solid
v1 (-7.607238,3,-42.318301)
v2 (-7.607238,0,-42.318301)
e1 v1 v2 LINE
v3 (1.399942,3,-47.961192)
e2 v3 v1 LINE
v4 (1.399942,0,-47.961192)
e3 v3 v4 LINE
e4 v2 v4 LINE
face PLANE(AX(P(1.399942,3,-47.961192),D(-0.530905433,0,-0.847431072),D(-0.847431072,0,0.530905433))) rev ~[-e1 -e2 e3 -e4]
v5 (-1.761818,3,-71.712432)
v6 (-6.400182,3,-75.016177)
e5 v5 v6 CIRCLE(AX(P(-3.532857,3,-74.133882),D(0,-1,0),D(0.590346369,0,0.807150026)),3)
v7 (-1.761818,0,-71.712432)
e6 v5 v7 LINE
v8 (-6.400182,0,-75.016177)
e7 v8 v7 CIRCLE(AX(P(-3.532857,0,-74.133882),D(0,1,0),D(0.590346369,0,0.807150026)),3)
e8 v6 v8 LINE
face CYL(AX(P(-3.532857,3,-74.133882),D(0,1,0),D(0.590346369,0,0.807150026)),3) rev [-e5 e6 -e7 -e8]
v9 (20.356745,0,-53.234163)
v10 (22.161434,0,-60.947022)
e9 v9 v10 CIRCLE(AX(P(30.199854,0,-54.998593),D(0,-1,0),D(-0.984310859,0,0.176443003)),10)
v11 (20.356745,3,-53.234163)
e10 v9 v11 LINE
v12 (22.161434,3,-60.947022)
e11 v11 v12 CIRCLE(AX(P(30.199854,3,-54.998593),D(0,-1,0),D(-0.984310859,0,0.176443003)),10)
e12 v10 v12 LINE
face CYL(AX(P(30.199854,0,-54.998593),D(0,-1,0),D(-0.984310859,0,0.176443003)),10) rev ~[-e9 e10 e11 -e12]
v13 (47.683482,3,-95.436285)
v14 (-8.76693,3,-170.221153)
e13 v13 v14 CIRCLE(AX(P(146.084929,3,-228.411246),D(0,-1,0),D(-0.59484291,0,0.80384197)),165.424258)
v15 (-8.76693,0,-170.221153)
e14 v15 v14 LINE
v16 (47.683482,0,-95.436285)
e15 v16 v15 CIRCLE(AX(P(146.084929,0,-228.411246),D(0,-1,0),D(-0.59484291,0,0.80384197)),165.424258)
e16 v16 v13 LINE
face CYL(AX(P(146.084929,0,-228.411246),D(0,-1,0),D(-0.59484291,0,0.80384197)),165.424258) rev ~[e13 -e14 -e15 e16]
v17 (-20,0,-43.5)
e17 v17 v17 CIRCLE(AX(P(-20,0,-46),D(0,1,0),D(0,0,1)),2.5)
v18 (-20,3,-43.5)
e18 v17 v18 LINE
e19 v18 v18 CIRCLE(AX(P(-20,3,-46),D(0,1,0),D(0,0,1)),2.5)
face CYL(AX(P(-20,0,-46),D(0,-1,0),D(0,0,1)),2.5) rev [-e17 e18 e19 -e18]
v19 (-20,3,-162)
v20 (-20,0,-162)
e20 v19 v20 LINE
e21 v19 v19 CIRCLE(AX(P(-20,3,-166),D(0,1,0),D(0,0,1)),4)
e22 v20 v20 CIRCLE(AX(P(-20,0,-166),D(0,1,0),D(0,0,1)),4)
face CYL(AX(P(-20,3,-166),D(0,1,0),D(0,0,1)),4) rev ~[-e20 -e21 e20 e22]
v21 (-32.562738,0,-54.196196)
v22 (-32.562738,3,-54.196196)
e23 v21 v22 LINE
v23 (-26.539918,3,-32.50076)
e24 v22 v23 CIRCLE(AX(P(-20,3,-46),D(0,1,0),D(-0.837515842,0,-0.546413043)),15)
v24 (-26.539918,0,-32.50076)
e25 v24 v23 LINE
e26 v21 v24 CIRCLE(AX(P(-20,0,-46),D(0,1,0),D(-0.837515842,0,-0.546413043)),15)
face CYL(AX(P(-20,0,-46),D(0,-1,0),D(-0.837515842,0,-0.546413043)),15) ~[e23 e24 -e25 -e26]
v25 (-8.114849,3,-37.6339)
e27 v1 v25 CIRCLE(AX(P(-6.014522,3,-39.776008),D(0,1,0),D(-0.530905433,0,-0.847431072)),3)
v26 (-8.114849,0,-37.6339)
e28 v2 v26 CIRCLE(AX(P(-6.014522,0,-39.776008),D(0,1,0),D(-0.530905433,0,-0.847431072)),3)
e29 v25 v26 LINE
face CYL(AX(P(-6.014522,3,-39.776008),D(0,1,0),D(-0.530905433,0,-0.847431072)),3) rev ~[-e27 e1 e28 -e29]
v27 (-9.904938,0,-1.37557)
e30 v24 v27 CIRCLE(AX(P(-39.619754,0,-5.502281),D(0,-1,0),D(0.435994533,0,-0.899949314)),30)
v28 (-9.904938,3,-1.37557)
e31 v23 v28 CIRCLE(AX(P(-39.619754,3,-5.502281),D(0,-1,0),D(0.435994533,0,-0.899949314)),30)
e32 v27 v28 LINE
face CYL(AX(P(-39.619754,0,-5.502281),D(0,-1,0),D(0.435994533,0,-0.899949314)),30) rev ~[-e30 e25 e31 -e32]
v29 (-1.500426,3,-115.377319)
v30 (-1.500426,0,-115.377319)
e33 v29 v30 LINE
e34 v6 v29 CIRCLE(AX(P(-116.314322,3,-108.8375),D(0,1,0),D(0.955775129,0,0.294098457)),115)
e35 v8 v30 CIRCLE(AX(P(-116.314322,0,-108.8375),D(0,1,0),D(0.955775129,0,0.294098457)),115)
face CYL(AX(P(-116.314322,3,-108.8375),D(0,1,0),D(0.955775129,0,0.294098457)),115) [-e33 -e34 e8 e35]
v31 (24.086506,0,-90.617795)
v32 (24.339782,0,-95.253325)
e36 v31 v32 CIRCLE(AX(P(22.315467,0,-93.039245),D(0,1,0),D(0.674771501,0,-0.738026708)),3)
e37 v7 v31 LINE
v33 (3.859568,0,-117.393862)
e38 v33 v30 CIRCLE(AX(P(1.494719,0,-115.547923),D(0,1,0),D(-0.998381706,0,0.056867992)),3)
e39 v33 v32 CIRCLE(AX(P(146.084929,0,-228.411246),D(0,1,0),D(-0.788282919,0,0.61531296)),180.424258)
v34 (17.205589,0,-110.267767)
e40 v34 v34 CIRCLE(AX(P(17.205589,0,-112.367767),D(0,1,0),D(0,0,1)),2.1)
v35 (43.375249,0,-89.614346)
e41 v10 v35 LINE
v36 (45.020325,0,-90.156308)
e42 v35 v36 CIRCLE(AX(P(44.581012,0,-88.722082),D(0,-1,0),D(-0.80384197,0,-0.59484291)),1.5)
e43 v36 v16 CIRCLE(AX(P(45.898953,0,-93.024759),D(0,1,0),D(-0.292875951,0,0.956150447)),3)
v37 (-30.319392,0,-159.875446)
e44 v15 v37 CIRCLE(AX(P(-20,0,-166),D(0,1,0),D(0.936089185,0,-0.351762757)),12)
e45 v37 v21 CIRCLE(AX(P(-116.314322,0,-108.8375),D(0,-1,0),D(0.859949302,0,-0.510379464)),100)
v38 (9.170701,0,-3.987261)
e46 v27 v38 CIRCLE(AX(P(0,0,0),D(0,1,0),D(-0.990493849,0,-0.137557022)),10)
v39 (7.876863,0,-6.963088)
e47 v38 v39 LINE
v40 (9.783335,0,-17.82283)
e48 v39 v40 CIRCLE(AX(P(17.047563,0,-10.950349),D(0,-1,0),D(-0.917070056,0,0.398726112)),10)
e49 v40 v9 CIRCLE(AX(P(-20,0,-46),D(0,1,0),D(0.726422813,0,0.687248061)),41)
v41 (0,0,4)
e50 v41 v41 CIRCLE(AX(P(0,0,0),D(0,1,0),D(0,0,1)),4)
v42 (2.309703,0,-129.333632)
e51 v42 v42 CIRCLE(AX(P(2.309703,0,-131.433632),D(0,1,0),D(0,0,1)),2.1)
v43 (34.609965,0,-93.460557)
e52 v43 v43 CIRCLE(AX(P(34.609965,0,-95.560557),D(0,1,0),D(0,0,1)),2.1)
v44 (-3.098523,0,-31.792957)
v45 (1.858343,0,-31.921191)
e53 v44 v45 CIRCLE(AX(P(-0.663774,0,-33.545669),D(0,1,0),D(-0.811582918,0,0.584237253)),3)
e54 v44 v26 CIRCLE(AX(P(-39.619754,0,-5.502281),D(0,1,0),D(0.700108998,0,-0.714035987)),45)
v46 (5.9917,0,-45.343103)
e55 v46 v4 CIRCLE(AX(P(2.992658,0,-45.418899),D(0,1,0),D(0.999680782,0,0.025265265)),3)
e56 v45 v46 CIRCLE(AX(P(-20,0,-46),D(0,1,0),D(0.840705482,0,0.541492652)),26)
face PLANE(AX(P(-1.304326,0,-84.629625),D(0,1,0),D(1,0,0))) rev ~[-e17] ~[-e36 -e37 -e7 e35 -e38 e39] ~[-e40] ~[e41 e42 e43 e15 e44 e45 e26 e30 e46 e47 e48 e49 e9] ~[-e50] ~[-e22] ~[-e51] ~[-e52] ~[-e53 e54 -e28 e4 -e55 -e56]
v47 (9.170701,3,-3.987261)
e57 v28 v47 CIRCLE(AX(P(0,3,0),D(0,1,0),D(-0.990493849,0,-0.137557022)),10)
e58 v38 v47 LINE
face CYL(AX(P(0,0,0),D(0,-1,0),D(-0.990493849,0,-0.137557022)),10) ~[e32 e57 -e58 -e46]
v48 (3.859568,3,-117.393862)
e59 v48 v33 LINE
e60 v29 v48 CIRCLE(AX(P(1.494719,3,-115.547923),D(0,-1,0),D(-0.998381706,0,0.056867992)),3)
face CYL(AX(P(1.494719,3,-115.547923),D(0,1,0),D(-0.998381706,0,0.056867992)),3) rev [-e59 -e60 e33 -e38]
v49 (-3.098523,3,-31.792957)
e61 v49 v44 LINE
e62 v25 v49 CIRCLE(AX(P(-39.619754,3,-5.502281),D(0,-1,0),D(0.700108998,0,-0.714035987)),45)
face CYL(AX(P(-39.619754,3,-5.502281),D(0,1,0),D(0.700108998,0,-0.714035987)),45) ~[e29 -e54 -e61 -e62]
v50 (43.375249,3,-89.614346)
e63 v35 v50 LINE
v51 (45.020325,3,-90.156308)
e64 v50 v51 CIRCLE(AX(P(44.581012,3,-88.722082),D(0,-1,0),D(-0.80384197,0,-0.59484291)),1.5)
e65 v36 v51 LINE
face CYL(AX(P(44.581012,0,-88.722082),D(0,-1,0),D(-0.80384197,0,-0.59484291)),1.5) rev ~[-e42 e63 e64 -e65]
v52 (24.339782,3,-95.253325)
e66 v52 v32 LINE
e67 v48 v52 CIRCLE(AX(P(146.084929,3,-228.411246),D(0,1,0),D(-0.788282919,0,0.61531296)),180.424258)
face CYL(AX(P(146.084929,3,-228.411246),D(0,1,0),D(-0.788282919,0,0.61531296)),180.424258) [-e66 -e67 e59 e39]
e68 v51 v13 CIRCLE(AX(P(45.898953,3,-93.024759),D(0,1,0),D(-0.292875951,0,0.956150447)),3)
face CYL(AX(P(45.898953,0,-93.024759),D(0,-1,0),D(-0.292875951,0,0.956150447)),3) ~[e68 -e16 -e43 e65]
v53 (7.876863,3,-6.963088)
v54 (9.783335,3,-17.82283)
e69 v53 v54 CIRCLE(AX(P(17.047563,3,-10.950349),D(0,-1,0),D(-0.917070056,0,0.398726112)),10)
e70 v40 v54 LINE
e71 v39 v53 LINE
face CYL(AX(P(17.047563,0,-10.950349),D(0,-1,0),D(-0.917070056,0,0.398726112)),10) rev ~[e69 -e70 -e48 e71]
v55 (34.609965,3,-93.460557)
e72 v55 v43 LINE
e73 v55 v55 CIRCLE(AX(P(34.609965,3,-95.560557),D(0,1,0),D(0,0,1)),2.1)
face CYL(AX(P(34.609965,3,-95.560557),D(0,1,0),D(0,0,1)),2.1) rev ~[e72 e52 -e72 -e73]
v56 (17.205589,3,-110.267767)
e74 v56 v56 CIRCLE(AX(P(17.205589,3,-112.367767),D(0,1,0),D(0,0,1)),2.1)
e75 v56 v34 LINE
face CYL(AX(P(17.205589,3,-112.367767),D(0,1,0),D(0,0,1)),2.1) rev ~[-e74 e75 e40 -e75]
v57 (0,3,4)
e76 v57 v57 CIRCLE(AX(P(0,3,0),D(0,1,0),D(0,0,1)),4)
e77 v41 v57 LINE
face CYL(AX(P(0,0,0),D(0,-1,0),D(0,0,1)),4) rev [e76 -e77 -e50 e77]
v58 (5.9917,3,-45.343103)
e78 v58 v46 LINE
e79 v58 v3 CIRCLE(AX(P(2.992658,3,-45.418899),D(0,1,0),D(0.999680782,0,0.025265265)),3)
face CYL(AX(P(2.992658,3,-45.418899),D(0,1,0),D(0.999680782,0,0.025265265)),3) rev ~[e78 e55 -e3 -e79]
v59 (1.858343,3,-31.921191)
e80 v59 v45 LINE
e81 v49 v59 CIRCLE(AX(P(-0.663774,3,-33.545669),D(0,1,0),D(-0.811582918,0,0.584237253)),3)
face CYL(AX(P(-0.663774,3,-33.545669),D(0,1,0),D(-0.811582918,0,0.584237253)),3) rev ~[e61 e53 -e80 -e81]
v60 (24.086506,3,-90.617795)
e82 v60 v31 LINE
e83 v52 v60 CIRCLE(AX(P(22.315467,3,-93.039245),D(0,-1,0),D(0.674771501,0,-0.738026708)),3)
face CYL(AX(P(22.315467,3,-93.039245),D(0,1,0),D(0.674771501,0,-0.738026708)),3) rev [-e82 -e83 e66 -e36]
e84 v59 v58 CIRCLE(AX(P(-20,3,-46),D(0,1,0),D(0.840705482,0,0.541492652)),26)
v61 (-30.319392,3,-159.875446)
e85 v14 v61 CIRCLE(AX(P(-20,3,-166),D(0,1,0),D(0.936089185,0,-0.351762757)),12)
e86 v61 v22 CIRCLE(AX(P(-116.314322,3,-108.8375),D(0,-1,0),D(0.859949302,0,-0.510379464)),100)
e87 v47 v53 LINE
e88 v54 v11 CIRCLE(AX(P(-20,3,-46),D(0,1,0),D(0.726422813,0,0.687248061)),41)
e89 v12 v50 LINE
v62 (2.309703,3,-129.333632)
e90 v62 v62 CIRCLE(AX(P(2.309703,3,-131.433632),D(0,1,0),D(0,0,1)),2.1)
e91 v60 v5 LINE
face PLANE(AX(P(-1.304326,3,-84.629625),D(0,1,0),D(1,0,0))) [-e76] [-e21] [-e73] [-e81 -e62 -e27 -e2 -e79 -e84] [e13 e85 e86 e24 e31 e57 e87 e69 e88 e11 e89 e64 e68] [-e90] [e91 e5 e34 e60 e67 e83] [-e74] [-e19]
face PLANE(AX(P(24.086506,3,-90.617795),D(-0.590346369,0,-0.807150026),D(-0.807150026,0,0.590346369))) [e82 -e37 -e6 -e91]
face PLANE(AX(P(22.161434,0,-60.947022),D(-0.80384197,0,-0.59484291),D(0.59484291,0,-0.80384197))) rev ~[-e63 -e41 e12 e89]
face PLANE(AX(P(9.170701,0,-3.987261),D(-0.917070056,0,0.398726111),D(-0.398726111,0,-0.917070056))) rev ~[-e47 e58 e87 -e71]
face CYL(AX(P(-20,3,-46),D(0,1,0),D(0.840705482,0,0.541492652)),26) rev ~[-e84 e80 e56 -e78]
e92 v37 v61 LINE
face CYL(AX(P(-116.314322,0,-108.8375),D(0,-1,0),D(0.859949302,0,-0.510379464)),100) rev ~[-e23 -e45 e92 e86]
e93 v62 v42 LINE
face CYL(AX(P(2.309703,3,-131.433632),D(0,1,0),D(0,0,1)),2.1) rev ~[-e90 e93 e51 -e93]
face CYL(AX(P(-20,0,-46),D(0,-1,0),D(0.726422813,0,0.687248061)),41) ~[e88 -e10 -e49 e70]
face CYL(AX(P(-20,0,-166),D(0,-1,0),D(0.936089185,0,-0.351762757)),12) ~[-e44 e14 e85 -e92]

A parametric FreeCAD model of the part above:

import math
import FreeCAD as App
import Part
import Sketcher

V = App.Vector
Q = App.Units.Quantity

doc = App.newDocument("Part")
body = doc.addObject("PartDesign::Body", "Body")

sketch1 = body.newObject("Sketcher::SketchObject", "Sketch")
sketch1.AttachmentSupport = (doc.getObject("XZ_Plane"), [""])
sketch1.MapMode = "FlatFace"
sketch1.addGeometry([
    Part.LineSegment(V(9.170701, -3.987261, 0), V(7.876863, -6.963088, 0)),
    Part.ArcOfCircle(Part.Circle(V(17.047563, -10.950349, 0), V(0, 0, 1), 10), math.radians(156.501434), math.radians(223.412662)),
    Part.ArcOfCircle(Part.Circle(V(-20, -46, 0), V(0, 0, 1), 41), math.radians(-10.162643), math.radians(43.412662)),
    Part.ArcOfCircle(Part.Circle(V(30.199854, -54.998593, 0), V(0, 0, 1), 10), math.radians(169.837357), math.radians(216.501434)),
    Part.LineSegment(V(22.161434, -60.947022, 0), V(43.375249, -89.614346, 0)),
    Part.ArcOfCircle(Part.Circle(V(44.581012, -88.722082, 0), V(0, 0, 1), 1.5), math.radians(-143.498566), math.radians(-72.969786)),
    Part.ArcOfCircle(Part.Circle(V(45.898953, -93.024759, 0), V(0, 0, 1), 3), math.radians(-53.498566), math.radians(107.030214)),
    Part.ArcOfCircle(Part.Circle(V(146.084929, -228.411246, 0), V(0, 0, 1), 165.424258), math.radians(126.501434), math.radians(159.404829)),
    Part.ArcOfCircle(Part.Circle(V(-20, -166, 0), V(0, 0, 1), 12), math.radians(149.310891), math.radians(339.404829)),
    Part.ArcOfCircle(Part.Circle(V(-116.314322, -108.8375, 0), V(0, 0, 1), 100), math.radians(-30.689109), math.radians(33.121279)),
    Part.ArcOfCircle(Part.Circle(V(-20, -46, 0), V(0, 0, 1), 15), math.radians(115.848594), math.radians(213.121279)),
    Part.ArcOfCircle(Part.Circle(V(-39.619754, -5.502281, 0), V(0, 0, 1), 30), math.radians(-64.151406), math.radians(7.906506)),
    Part.ArcOfCircle(Part.Circle(V(0, 0, 0), V(0, 0, 1), 10), math.radians(-23.498566), math.radians(187.906506)),
    Part.Circle(V(0, 0, 0), V(0, 0, 1), 4),
    Part.Circle(V(-20, -46, 0), V(0, 0, 1), 2.5),
], False)
sketch1.addConstraint([
    Sketcher.Constraint("Tangent", 0, 2, 1, 1),
    Sketcher.Constraint("Tangent", 1, 2, 2, 2),
    Sketcher.Constraint("Tangent", 2, 1, 3, 1),
    Sketcher.Constraint("Tangent", 3, 2, 4, 1),
    Sketcher.Constraint("Tangent", 4, 2, 5, 1),
    Sketcher.Constraint("Tangent", 5, 2, 6, 2),
    Sketcher.Constraint("Tangent", 6, 1, 7, 1),
    Sketcher.Constraint("Tangent", 7, 2, 8, 2),
    Sketcher.Constraint("Tangent", 8, 1, 9, 1),
    Sketcher.Constraint("Tangent", 9, 2, 10, 2),
    Sketcher.Constraint("Tangent", 10, 1, 11, 1),
    Sketcher.Constraint("Tangent", 11, 2, 12, 2),
    Sketcher.Constraint("Tangent", 12, 1, 0, 1),
    Sketcher.Constraint("Coincident", 12, 3, -1, 1),
    Sketcher.Constraint("Coincident", 13, 3, -1, 1),
    Sketcher.Constraint("Coincident", 10, 3, 2, 3),
    Sketcher.Constraint("Coincident", 14, 3, 2, 3),
    Sketcher.Constraint("Equal", 1, 3),
    Sketcher.Constraint("Equal", 3, 12),
    Sketcher.Constraint("Vertical", 2, 3, 8, 3),
    Sketcher.Constraint("Diameter", 13, Q("8 mm")),
    Sketcher.Constraint("Diameter", 14, Q("5 mm")),
    Sketcher.Constraint("Radius", 1, Q("10 mm")),
    Sketcher.Constraint("Radius", 2, Q("41 mm")),
    Sketcher.Constraint("Radius", 6, Q("3 mm")),
    Sketcher.Constraint("Radius", 8, Q("12 mm")),
    Sketcher.Constraint("Radius", 9, Q("100 mm")),
    Sketcher.Constraint("Radius", 10, Q("15 mm")),
    Sketcher.Constraint("Radius", 11, Q("30 mm")),
    Sketcher.Constraint("Radius", 5, Q("1.5 mm")),
    Sketcher.Constraint("DistanceX", 2, 3, -1, 1, Q("20 mm")),
    Sketcher.Constraint("DistanceY", 2, 3, -1, 1, Q("46 mm")),
    Sketcher.Constraint("DistanceY", 8, 3, -1, 1, Q("166 mm")),
    Sketcher.Constraint("Radius", 7, Q("165.424258 mm")),
    Sketcher.Constraint("DistanceX", -1, 1, 12, 1, Q("9.170701 mm")),
    Sketcher.Constraint("DistanceX", 3, 3, 6, 3, Q("15.6991 mm")),
    Sketcher.Constraint("DistanceY", 5, 3, 11, 3, Q("83.219801 mm")),
    Sketcher.Constraint("DistanceX", -1, 1, 5, 3, Q("44.581012 mm")),
    Sketcher.Constraint("DistanceY", 6, 3, -1, 1, Q("93.024759 mm")),
])
pad1 = body.newObject("PartDesign::Pad", "Pad")
pad1.Profile = sketch1
pad1.Length = 3
pad1.Reversed = True

sketch2 = body.newObject("Sketcher::SketchObject", "Sketch001")
sketch2.AttachmentSupport = (doc.getObject("XZ_Plane"), [""])
sketch2.MapMode = "FlatFace"
sketch2.AttachmentOffset = App.Placement(V(0, 0, -3), App.Rotation())
sketch2.addGeometry(Part.Circle(V(-20, -166, 0), V(0, 0, 1), 4), False)
sketch2.addConstraint([
    Sketcher.Constraint("Diameter", 0, Q("8 mm")),
    Sketcher.Constraint("DistanceX", 0, 3, -1, 1, Q("20 mm")),
    Sketcher.Constraint("DistanceY", 0, 3, -1, 1, Q("166 mm")),
])
pocket1 = body.newObject("PartDesign::Pocket", "Pocket")
pocket1.Profile = sketch2
pocket1.Type = "UpToFirst"
pocket1.Reversed = True

sketch3 = body.newObject("Sketcher::SketchObject", "Sketch002")
sketch3.AttachmentSupport = (doc.getObject("XZ_Plane"), [""])
sketch3.MapMode = "FlatFace"
sketch3.AttachmentOffset = App.Placement(V(0, 0, -3), App.Rotation())
sketch3.addGeometry([
    Part.LineSegment(V(-1.761818, -71.712432, 0), V(24.086506, -90.617795, 0)),
    Part.ArcOfCircle(Part.Circle(V(22.315467, -93.039245, 0), V(0, 0, 1), 3), math.radians(-47.563592), math.radians(53.818409)),
    Part.ArcOfCircle(Part.Circle(V(146.084929, -228.411246, 0), V(0, 0, 1), 180.424258), math.radians(132.436408), math.radians(142.025336)),
    Part.ArcOfCircle(Part.Circle(V(1.494719, -115.547923, 0), V(0, 0, 1), 3), math.radians(176.739945), math.radians(322.025336)),
    Part.ArcOfCircle(Part.Circle(V(-116.314322, -108.8375, 0), V(0, 0, 1), 115), math.radians(-3.260055), math.radians(17.103485)),
    Part.ArcOfCircle(Part.Circle(V(-3.532857, -74.133882, 0), V(0, 0, 1), 3), math.radians(53.818409), math.radians(197.103485)),
], False)
sketch3.addConstraint([
    Sketcher.Constraint("Tangent", 0, 2, 1, 2),
    Sketcher.Constraint("Tangent", 1, 1, 2, 1),
    Sketcher.Constraint("Tangent", 2, 2, 3, 2),
    Sketcher.Constraint("Tangent", 3, 1, 4, 1),
    Sketcher.Constraint("Tangent", 4, 2, 5, 2),
    Sketcher.Constraint("Tangent", 5, 1, 0, 1),
    Sketcher.Constraint("Equal", 1, 3),
    Sketcher.Constraint("Equal", 3, 5),
    Sketcher.Constraint("Radius", 1, Q("3 mm")),
    Sketcher.Constraint("Radius", 4, Q("115 mm")),
    Sketcher.Constraint("Radius", 2, Q("180.424258 mm")),
    Sketcher.Constraint("DistanceY", 2, 3, 1, 3, Q("135.372001 mm")),
    Sketcher.Constraint("DistanceY", 4, 3, -1, 1, Q("108.8375 mm")),
    Sketcher.Constraint("DistanceY", 3, 3, 1, 1, Q("20.294598 mm")),
    Sketcher.Constraint("DistanceX", 5, 1, 1, 1, Q("26.101599 mm")),
    Sketcher.Constraint("DistanceX", -1, 1, 2, 3, Q("146.084929 mm")),
    Sketcher.Constraint("DistanceX", 4, 3, -1, 1, Q("116.314322 mm")),
])
pocket2 = body.newObject("PartDesign::Pocket", "Pocket001")
pocket2.Profile = sketch3
pocket2.Type = "UpToFirst"
pocket2.Reversed = True

sketch4 = body.newObject("Sketcher::SketchObject", "Sketch003")
sketch4.AttachmentSupport = (doc.getObject("XZ_Plane"), [""])
sketch4.MapMode = "FlatFace"
sketch4.AttachmentOffset = App.Placement(V(0, 0, -3), App.Rotation())
sketch4.addGeometry([
    Part.LineSegment(V(1.399942, -47.961192, 0), V(-7.607238, -42.318301, 0)),
    Part.ArcOfCircle(Part.Circle(V(-6.014522, -39.776008, 0), V(0, 0, 1), 3), math.radians(134.43575), math.radians(237.933348)),
    Part.ArcOfCircle(Part.Circle(V(-39.619754, -5.502281, 0), V(0, 0, 1), 45), math.radians(-45.56425), math.radians(-35.749124)),
    Part.ArcOfCircle(Part.Circle(V(-0.663774, -33.545669, 0), V(0, 0, 1), 3), math.radians(32.785308), math.radians(144.250876)),
    Part.ArcOfCircle(Part.Circle(V(-20, -46, 0), V(0, 0, 1), 26), math.radians(1.447747), math.radians(32.785308)),
    Part.ArcOfCircle(Part.Circle(V(2.992658, -45.418899, 0), V(0, 0, 1), 3), math.radians(-122.066652), math.radians(1.447747)),
], False)
sketch4.addConstraint([
    Sketcher.Constraint("Tangent", 0, 2, 1, 2),
    Sketcher.Constraint("Tangent", 1, 1, 2, 1),
    Sketcher.Constraint("Tangent", 2, 2, 3, 2),
    Sketcher.Constraint("Tangent", 3, 1, 4, 2),
    Sketcher.Constraint("Tangent", 4, 1, 5, 2),
    Sketcher.Constraint("Tangent", 5, 1, 0, 1),
    Sketcher.Constraint("Equal", 1, 3),
    Sketcher.Constraint("Equal", 3, 5),
    Sketcher.Constraint("Radius", 1, Q("3 mm")),
    Sketcher.Constraint("Radius", 2, Q("45 mm")),
    Sketcher.Constraint("Radius", 4, Q("26 mm")),
    Sketcher.Constraint("DistanceX", 4, 3, -1, 1, Q("20 mm")),
    Sketcher.Constraint("DistanceY", 4, 3, -1, 1, Q("46 mm")),
    Sketcher.Constraint("DistanceY", 5, 3, 1, 1, Q("7.784999 mm")),
    Sketcher.Constraint("DistanceX", 1, 3, 2, 2, Q("2.915999 mm")),
    Sketcher.Constraint("DistanceY", 5, 3, -1, 1, Q("45.418899 mm")),
    Sketcher.Constraint("DistanceY", 0, 2, -1, 1, Q("42.318301 mm")),
])
pocket3 = body.newObject("PartDesign::Pocket", "Pocket002")
pocket3.Profile = sketch4
pocket3.Type = "UpToFirst"
pocket3.Reversed = True

sketch5 = body.newObject("Sketcher::SketchObject", "Sketch004")
sketch5.AttachmentSupport = (doc.getObject("XZ_Plane"), [""])
sketch5.MapMode = "FlatFace"
sketch5.AttachmentOffset = App.Placement(V(0, 0, -3), App.Rotation())
sketch5.addGeometry(Part.Circle(V(2.309703, -131.433632, 0), V(0, 0, 1), 2.1), False)
sketch5.addConstraint([
    Sketcher.Constraint("Diameter", 0, Q("4.2 mm")),
    Sketcher.Constraint("DistanceY", 0, 3, -1, 1, Q("131.433632 mm")),
    Sketcher.Constraint("DistanceX", -1, 1, 0, 3, Q("2.309703 mm")),
])
pocket4 = body.newObject("PartDesign::Pocket", "Pocket003")
pocket4.Profile = sketch5
pocket4.Type = "UpToFirst"
pocket4.Reversed = True

sketch6 = body.newObject("Sketcher::SketchObject", "Sketch005")
sketch6.AttachmentSupport = (doc.getObject("XZ_Plane"), [""])
sketch6.MapMode = "FlatFace"
sketch6.AttachmentOffset = App.Placement(V(0, 0, -3), App.Rotation())
sketch6.addGeometry(Part.Circle(V(34.609965, -95.560557, 0), V(0, 0, 1), 2.1), False)
sketch6.addConstraint([
    Sketcher.Constraint("Diameter", 0, Q("4.2 mm")),
    Sketcher.Constraint("DistanceX", -1, 1, 0, 3, Q("34.609965 mm")),
    Sketcher.Constraint("DistanceY", 0, 3, -1, 1, Q("95.560557 mm")),
])
pocket5 = body.newObject("PartDesign::Pocket", "Pocket004")
pocket5.Profile = sketch6
pocket5.Type = "UpToFirst"
pocket5.Reversed = True

sketch7 = body.newObject("Sketcher::SketchObject", "Sketch006")
sketch7.AttachmentSupport = (doc.getObject("XZ_Plane"), [""])
sketch7.MapMode = "FlatFace"
sketch7.AttachmentOffset = App.Placement(V(0, 0, -3), App.Rotation())
sketch7.addGeometry(Part.Circle(V(17.205589, -112.367767, 0), V(0, 0, 1), 2.1), False)
sketch7.addConstraint([
    Sketcher.Constraint("Diameter", 0, Q("4.2 mm")),
    Sketcher.Constraint("DistanceX", -1, 1, 0, 3, Q("17.205589 mm")),
    Sketcher.Constraint("DistanceY", 0, 3, -1, 1, Q("112.367767 mm")),
])
pocket6 = body.newObject("PartDesign::Pocket", "Pocket005")
pocket6.Profile = sketch7
pocket6.Type = "UpToFirst"
pocket6.Reversed = True

doc.recompute()
